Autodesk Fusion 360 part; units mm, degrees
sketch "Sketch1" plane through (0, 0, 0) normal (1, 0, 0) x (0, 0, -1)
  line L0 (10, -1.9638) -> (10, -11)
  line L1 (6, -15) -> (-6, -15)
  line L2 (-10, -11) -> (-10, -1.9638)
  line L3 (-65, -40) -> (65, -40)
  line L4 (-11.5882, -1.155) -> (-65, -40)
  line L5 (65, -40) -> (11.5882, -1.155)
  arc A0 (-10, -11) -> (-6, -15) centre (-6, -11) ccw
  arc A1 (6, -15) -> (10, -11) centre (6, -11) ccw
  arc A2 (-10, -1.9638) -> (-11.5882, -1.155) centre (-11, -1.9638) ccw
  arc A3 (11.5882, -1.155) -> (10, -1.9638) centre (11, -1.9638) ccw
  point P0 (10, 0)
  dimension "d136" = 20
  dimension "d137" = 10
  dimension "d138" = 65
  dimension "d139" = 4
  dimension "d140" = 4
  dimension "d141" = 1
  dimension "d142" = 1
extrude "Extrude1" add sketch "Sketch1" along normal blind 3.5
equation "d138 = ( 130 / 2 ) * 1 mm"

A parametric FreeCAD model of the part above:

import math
import FreeCAD as App
import Part
import Sketcher
from FreeCAD import Vector

doc = App.newDocument("Part")
body = doc.addObject("PartDesign::Body", "Body")

# Sketch on YZ plane
sketch1 = body.newObject("Sketcher::SketchObject", "Sketch")
sketch1.AttachmentSupport = (doc.getObject("YZ_Plane"), [""])
sketch1.MapMode = "FlatFace"
sketch1.addGeometry(Part.ArcOfCircle(Part.Circle(Vector(-1.9638, -11, 0), Vector(0, 0, 1), 1.000068), math.radians(-36.026531), math.radians(90)), False)
sketch1.addGeometry(Part.LineSegment(Vector(-1.9638, -10, 0), Vector(-11, -10, 0)), False)
sketch1.addGeometry(Part.ArcOfCircle(Part.Circle(Vector(-11, -6, 0), Vector(0, 0, 1), 4), math.radians(180), math.radians(270)), False)
sketch1.addGeometry(Part.LineSegment(Vector(-15, -6, 0), Vector(-15, 6, 0)), False)
sketch1.addGeometry(Part.ArcOfCircle(Part.Circle(Vector(-11, 6, 0), Vector(0, 0, 1), 4), math.radians(90), math.radians(180)), False)
sketch1.addGeometry(Part.LineSegment(Vector(-11, 10, 0), Vector(-1.9638, 10, 0)), False)
sketch1.addGeometry(Part.ArcOfCircle(Part.Circle(Vector(-1.9638, 11, 0), Vector(0, 0, 1), 1), math.radians(-90), math.radians(36.026531)), False)
sketch1.addGeometry(Part.LineSegment(Vector(-1.155, 11.5882, 0), Vector(-40, 65, 0)), False)
sketch1.addGeometry(Part.LineSegment(Vector(-40, 65, 0), Vector(-40, -65, 0)), False)
sketch1.addGeometry(Part.LineSegment(Vector(-40, -65, 0), Vector(-1.155, -11.5882, 0)), False)
sketch1.addConstraint(Sketcher.Constraint("Tangent", 0, 2, 1, 1))
sketch1.addConstraint(Sketcher.Constraint("Tangent", 1, 2, 2, 2))
sketch1.addConstraint(Sketcher.Constraint("Tangent", 2, 1, 3, 1))
sketch1.addConstraint(Sketcher.Constraint("Tangent", 3, 2, 4, 2))
sketch1.addConstraint(Sketcher.Constraint("Tangent", 4, 1, 5, 1))
sketch1.addConstraint(Sketcher.Constraint("Tangent", 5, 2, 6, 1))
sketch1.addConstraint(Sketcher.Constraint("Tangent", 6, 2, 7, 1))
sketch1.addConstraint(Sketcher.Constraint("Coincident", 7, 2, 8, 1))
sketch1.addConstraint(Sketcher.Constraint("Coincident", 8, 2, 9, 1))
sketch1.addConstraint(Sketcher.Constraint("Tangent", 9, 2, 0, 1))
sketch1.addConstraint(Sketcher.Constraint("Horizontal", 1))
sketch1.addConstraint(Sketcher.Constraint("Vertical", 3))
sketch1.addConstraint(Sketcher.Constraint("Horizontal", 5))
sketch1.addConstraint(Sketcher.Constraint("Vertical", 8))
sketch1.addConstraint(Sketcher.Constraint("Equal", 2, 4))
sketch1.addConstraint(Sketcher.Constraint("Equal", 0, 6))
sketch1.addConstraint(Sketcher.Constraint("Symmetric", 0, 3, 6, 3, -1))
sketch1.addConstraint(Sketcher.Constraint("Vertical", 6, 2, 9, 2))
sketch1.addConstraint(Sketcher.Constraint("Radius", 0, 1.0))
sketch1.addConstraint(Sketcher.Constraint("Radius", 2, 4.0))
sketch1.addConstraint(Sketcher.Constraint("DistanceY", 0, 2, -1, 1, 10.0))
sketch1.addConstraint(Sketcher.Constraint("DistanceY", -1, 1, 7, 2, 65.0))
sketch1.addConstraint(Sketcher.Constraint("DistanceX", 2, 3, -1, 1, 11.0))
sketch1.addConstraint(Sketcher.Constraint("DistanceX", 7, 2, -1, 1, 40.0))
sketch1.addConstraint(Sketcher.Constraint("DistanceX", 1, 2, 1, 1, 9.0362))
pad1 = body.newObject("PartDesign::Pad", "Pad")
pad1.Profile = sketch1
pad1.Length = 3.5

doc.recompute()
